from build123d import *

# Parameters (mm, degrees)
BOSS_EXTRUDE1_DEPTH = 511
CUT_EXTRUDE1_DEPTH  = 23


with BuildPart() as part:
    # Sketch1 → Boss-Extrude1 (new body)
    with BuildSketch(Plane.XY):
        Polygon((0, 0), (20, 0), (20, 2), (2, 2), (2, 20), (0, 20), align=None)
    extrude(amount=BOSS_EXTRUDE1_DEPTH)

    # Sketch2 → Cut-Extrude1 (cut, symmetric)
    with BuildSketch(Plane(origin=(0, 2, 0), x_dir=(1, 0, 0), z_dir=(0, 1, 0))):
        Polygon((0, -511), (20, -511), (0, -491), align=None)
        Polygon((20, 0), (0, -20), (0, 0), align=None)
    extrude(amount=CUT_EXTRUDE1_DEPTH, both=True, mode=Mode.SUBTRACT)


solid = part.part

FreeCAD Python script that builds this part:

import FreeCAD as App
import Part
import Sketcher
from FreeCAD import Vector
Q = App.Units.Quantity

doc = App.newDocument("Part")
body = doc.addObject("PartDesign::Body", "Body")

# Sketch on XY plane
sketch1 = body.newObject("Sketcher::SketchObject", "Sketch")
sketch1.AttachmentSupport = (doc.getObject("XY_Plane"), [""])
sketch1.MapMode = "FlatFace"
sketch1.addGeometry(Part.LineSegment(Vector(0, 0, 0), Vector(20, 0, 0)), False)
sketch1.addGeometry(Part.LineSegment(Vector(20, 0, 0), Vector(20, 2, 0)), False)
sketch1.addGeometry(Part.LineSegment(Vector(20, 2, 0), Vector(2, 2, 0)), False)
sketch1.addGeometry(Part.LineSegment(Vector(2, 2, 0), Vector(2, 20, 0)), False)
sketch1.addGeometry(Part.LineSegment(Vector(2, 20, 0), Vector(0, 20, 0)), False)
sketch1.addGeometry(Part.LineSegment(Vector(0, 20, 0), Vector(0, 0, 0)), False)
sketch1.addConstraint(Sketcher.Constraint("Coincident", 0, 2, 1, 1))
sketch1.addConstraint(Sketcher.Constraint("Coincident", 1, 2, 2, 1))
sketch1.addConstraint(Sketcher.Constraint("Coincident", 2, 2, 3, 1))
sketch1.addConstraint(Sketcher.Constraint("Coincident", 3, 2, 4, 1))
sketch1.addConstraint(Sketcher.Constraint("Coincident", 4, 2, 5, 1))
sketch1.addConstraint(Sketcher.Constraint("Coincident", 5, 2, 0, 1))
sketch1.addConstraint(Sketcher.Constraint("Horizontal", 0))
sketch1.addConstraint(Sketcher.Constraint("Vertical", 1))
sketch1.addConstraint(Sketcher.Constraint("Horizontal", 2))
sketch1.addConstraint(Sketcher.Constraint("Vertical", 3))
sketch1.addConstraint(Sketcher.Constraint("Horizontal", 4))
sketch1.addConstraint(Sketcher.Constraint("Vertical", 5))
sketch1.addConstraint(Sketcher.Constraint("Coincident", 5, 2, -1, 1))
sketch1.addConstraint(Sketcher.Constraint("Equal", 4, 1))
sketch1.addConstraint(Sketcher.Constraint("Equal", 2, 3))
sketch1.addConstraint(Sketcher.Constraint("DistanceX", 0, 1, 0, 2, Q("20 mm")))
sketch1.addConstraint(Sketcher.Constraint("DistanceX", 2, 2, 2, 1, Q("18 mm")))
pad1 = body.newObject("PartDesign::Pad", "Pad")
pad1.Profile = sketch1
pad1.Length = 511

# Sketch on XZ plane
sketch2 = body.newObject("Sketcher::SketchObject", "Sketch001")
sketch2.AttachmentSupport = (doc.getObject("XZ_Plane"), [""])
sketch2.MapMode = "FlatFace"
sketch2.AttachmentOffset = App.Placement(Vector(0, 0, -2), App.Rotation())
sketch2.addGeometry(Part.LineSegment(Vector(0, 511, 0), Vector(20, 511, 0)), False)
sketch2.addGeometry(Part.LineSegment(Vector(20, 511, 0), Vector(0, 491, 0)), False)
sketch2.addGeometry(Part.LineSegment(Vector(0, 491, 0), Vector(0, 511, 0)), False)
sketch2.addGeometry(Part.LineSegment(Vector(0, 20, 0), Vector(20, 0, 0)), False)
sketch2.addGeometry(Part.LineSegment(Vector(20, 0, 0), Vector(0, 0, 0)), False)
sketch2.addGeometry(Part.LineSegment(Vector(0, 0, 0), Vector(0, 20, 0)), False)
sketch2.addConstraint(Sketcher.Constraint("Coincident", 0, 2, 1, 1))
sketch2.addConstraint(Sketcher.Constraint("Coincident", 1, 2, 2, 1))
sketch2.addConstraint(Sketcher.Constraint("Coincident", 2, 2, 0, 1))
sketch2.addConstraint(Sketcher.Constraint("Coincident", 3, 2, 4, 1))
sketch2.addConstraint(Sketcher.Constraint("Coincident", 4, 2, 5, 1))
sketch2.addConstraint(Sketcher.Constraint("Coincident", 5, 2, 3, 1))
sketch2.addConstraint(Sketcher.Constraint("Horizontal", 0))
sketch2.addConstraint(Sketcher.Constraint("Vertical", 2))
sketch2.addConstraint(Sketcher.Constraint("Horizontal", 4))
sketch2.addConstraint(Sketcher.Constraint("Vertical", 5))
sketch2.addConstraint(Sketcher.Constraint("Coincident", 4, 2, -1, 1))
sketch2.addConstraint(Sketcher.Constraint("PointOnObject", 1, 2, -2))
sketch2.addConstraint(Sketcher.Constraint("Perpendicular", 1, 3))
sketch2.addConstraint(Sketcher.Constraint("Vertical", 0, 2, 3, 2))
sketch2.addConstraint(Sketcher.Constraint("Equal", 4, 2))
sketch2.addConstraint(Sketcher.Constraint("DistanceX", 0, 1, 0, 2, Q("20 mm")))
sketch2.addConstraint(Sketcher.Constraint("DistanceY", -1, 1, 0, 2, Q("511 mm")))
pocket1 = body.newObject("PartDesign::Pocket", "Pocket")
pocket1.Profile = sketch2
pocket1.Length = 46
pocket1.Midplane = True

doc.recompute()
